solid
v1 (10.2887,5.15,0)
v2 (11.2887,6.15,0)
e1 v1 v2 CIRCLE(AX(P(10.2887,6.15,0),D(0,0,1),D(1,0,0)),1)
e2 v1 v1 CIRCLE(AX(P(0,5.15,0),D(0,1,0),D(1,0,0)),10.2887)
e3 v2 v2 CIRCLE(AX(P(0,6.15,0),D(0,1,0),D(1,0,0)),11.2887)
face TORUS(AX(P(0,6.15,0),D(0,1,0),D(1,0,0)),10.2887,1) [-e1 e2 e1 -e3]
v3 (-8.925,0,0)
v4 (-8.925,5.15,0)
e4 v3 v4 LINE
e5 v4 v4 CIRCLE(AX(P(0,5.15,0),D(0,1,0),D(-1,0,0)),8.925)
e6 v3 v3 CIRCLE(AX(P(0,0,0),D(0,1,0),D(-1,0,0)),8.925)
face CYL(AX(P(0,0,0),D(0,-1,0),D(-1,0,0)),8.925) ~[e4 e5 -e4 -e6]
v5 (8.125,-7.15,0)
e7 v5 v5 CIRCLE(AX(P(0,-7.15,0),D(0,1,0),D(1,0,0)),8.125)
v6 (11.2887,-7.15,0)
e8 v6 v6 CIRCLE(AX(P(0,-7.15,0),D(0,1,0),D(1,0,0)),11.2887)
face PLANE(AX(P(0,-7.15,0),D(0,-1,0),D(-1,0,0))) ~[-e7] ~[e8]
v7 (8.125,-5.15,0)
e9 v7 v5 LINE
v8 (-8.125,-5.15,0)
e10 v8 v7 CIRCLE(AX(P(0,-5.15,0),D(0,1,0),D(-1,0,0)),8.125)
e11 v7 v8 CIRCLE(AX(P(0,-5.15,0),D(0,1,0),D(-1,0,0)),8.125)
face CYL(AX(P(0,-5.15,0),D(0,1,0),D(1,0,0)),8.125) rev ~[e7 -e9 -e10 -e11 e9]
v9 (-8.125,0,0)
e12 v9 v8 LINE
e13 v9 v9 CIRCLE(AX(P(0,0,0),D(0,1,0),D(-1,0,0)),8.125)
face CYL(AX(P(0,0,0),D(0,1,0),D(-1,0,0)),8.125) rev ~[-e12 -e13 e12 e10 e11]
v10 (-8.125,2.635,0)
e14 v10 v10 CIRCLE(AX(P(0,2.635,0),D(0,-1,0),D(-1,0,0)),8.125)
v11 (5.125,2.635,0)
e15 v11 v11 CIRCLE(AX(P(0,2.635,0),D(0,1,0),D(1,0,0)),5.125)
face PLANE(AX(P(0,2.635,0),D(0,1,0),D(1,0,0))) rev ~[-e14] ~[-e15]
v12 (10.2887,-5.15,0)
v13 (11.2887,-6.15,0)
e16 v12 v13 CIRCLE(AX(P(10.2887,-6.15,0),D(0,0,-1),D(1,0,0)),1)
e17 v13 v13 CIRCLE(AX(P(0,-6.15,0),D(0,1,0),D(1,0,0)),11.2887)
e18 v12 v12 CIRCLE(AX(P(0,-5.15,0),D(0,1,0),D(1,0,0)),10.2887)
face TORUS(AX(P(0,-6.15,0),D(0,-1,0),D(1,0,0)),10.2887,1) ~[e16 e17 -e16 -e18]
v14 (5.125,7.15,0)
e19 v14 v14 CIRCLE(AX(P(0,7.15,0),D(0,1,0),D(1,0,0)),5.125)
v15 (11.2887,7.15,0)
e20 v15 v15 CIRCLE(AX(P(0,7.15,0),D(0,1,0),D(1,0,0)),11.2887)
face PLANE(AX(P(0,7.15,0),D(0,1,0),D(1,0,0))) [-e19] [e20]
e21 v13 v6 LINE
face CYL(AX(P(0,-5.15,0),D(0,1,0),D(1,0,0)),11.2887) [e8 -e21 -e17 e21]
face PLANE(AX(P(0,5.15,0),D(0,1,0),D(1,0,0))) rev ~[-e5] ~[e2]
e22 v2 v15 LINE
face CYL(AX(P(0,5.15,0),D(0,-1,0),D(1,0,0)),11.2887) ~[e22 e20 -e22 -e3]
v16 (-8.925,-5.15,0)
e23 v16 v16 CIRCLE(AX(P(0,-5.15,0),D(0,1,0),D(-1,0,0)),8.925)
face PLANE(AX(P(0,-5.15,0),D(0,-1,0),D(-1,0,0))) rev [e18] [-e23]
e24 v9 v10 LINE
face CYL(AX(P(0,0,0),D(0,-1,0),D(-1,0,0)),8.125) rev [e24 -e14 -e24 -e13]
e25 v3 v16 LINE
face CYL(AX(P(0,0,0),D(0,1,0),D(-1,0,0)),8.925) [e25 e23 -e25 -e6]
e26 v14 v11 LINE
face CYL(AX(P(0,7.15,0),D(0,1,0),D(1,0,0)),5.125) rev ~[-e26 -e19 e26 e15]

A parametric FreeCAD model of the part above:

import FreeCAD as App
import Part
import Sketcher
from FreeCAD import Vector
Q = App.Units.Quantity


def edges_at(feature, points):
    """Names of the edges that pass closest to the given points."""
    edges = feature.Shape.Edges
    near = lambda p: min(range(len(edges)), key=lambda i: edges[i].distToShape(Part.Vertex(*p))[0])
    return sorted({f"Edge{near(p) + 1}" for p in points})

doc = App.newDocument("Part")
params = doc.addObject("Spreadsheet::Sheet", "Params")
for row, (alias, value) in enumerate([
    ("sketch1_diameter", "16.25 mm"),
    ("sketch1_diameter2", "17.85 mm"),
    ("pad1_length", "10.3 mm"),
    ("sketch2_diameter", "16.25 mm"),
    ("pad2_length", "2 mm"),
    ("fillet_radius", "1 mm"),
    ("sketch3_diameter", "10.25 mm"),
    ("sketch3_diameter2", "16.25 mm"),
    ("pad3_length", "4.515 mm"),
], start=1):
    params.set(f"A{row}", alias)
    params.set(f"B{row}", "=" + value)
    params.setAlias(f"B{row}", alias)

body = doc.addObject("PartDesign::Body", "Body")

# Sketch on XZ plane
sketch1 = doc.addObject("Sketcher::SketchObject", "Sketch")
body.addObject(sketch1)
sketch1.AttachmentSupport = (doc.XZ_Plane, [""])
sketch1.MapMode = "FlatFace"
sketch1.addGeometry(Part.Circle(Vector(0, 0, 0), Vector(0, 0, 1), 8.925), False)
sketch1.addGeometry(Part.Circle(Vector(0, 0, 0), Vector(0, 0, 1), 8.125), False)
sketch1.addConstraint(Sketcher.Constraint("Coincident", 0, 3, -1, 1))
sketch1.addConstraint(Sketcher.Constraint("Coincident", 1, 3, -1, 1))
sketch1.addConstraint(Sketcher.Constraint("Diameter", 1, Q("16.25 mm")))
sketch1.addConstraint(Sketcher.Constraint("Diameter", 0, Q("17.85 mm")))
sketch1.setExpression("Constraints[2]", "Params.sketch1_diameter")
sketch1.setExpression("Constraints[3]", "Params.sketch1_diameter2")
pad1 = doc.addObject("PartDesign::Pad", "Pad")
body.addObject(pad1)
pad1.Profile = sketch1
pad1.setExpression("Length", "Params.pad1_length")
pad1.Midplane = True

# Sketch on XZ plane
sketch2 = doc.addObject("Sketcher::SketchObject", "Sketch001")
body.addObject(sketch2)
sketch2.AttachmentSupport = (doc.XZ_Plane, [""])
sketch2.MapMode = "FlatFace"
sketch2.AttachmentOffset = App.Placement(Vector(0, 0, -5.15), App.Rotation())
sketch2.addGeometry(Part.Circle(Vector(0, 0, 0), Vector(0, 0, 1), 11.2887), False)
sketch2.addGeometry(Part.Circle(Vector(0, 0, 0), Vector(0, 0, 1), 8.125), False)
sketch2.addConstraint(Sketcher.Constraint("Coincident", 0, 3, -1, 1))
sketch2.addConstraint(Sketcher.Constraint("Coincident", 1, 3, -1, 1))
sketch2.addConstraint(Sketcher.Constraint("Diameter", 1, Q("16.25 mm")))
sketch2.addConstraint(Sketcher.Constraint("Diameter", 0, Q("22.5774 mm")))
sketch2.setExpression("Constraints[2]", "Params.sketch2_diameter")
pad2 = doc.addObject("PartDesign::Pad", "Pad001")
body.addObject(pad2)
pad2.Profile = sketch2
pad2.setExpression("Length", "Params.pad2_length")
pad2.Reversed = True
doc.recompute()

fillet = doc.addObject("PartDesign::Fillet", "Fillet")
body.addObject(fillet)
fillet.Base = (pad2, edges_at(pad2, [(-11.289, 5.15, 0)]))
fillet.setExpression("Radius", "Params.fillet_radius")
doc.recompute()

mirrored = doc.addObject("PartDesign::Mirrored", "Mirrored")
body.addObject(mirrored)
mirrored.Originals = [pad2, fillet]
mirrored.MirrorPlane = (doc.XZ_Plane, [""])
body.Tip = mirrored

# Sketch on XZ plane
sketch3 = doc.addObject("Sketcher::SketchObject", "Sketch002")
body.addObject(sketch3)
sketch3.AttachmentSupport = (doc.XZ_Plane, [""])
sketch3.MapMode = "FlatFace"
sketch3.AttachmentOffset = App.Placement(Vector(0, 0, -7.15), App.Rotation())
sketch3.addGeometry(Part.Circle(Vector(0, 0, 0), Vector(0, 0, 1), 8.125), False)
sketch3.addGeometry(Part.Circle(Vector(0, 0, 0), Vector(0, 0, 1), 5.125), False)
sketch3.addConstraint(Sketcher.Constraint("Coincident", 0, 3, -1, 1))
sketch3.addConstraint(Sketcher.Constraint("Coincident", 1, 3, -1, 1))
sketch3.addConstraint(Sketcher.Constraint("Diameter", 1, Q("10.25 mm")))
sketch3.addConstraint(Sketcher.Constraint("Diameter", 0, Q("16.25 mm")))
sketch3.setExpression("Constraints[2]", "Params.sketch3_diameter")
sketch3.setExpression("Constraints[3]", "Params.sketch3_diameter2")
pad3 = doc.addObject("PartDesign::Pad", "Pad002")
body.addObject(pad3)
pad3.Profile = sketch3
pad3.setExpression("Length", "Params.pad3_length")

doc.recompute()
